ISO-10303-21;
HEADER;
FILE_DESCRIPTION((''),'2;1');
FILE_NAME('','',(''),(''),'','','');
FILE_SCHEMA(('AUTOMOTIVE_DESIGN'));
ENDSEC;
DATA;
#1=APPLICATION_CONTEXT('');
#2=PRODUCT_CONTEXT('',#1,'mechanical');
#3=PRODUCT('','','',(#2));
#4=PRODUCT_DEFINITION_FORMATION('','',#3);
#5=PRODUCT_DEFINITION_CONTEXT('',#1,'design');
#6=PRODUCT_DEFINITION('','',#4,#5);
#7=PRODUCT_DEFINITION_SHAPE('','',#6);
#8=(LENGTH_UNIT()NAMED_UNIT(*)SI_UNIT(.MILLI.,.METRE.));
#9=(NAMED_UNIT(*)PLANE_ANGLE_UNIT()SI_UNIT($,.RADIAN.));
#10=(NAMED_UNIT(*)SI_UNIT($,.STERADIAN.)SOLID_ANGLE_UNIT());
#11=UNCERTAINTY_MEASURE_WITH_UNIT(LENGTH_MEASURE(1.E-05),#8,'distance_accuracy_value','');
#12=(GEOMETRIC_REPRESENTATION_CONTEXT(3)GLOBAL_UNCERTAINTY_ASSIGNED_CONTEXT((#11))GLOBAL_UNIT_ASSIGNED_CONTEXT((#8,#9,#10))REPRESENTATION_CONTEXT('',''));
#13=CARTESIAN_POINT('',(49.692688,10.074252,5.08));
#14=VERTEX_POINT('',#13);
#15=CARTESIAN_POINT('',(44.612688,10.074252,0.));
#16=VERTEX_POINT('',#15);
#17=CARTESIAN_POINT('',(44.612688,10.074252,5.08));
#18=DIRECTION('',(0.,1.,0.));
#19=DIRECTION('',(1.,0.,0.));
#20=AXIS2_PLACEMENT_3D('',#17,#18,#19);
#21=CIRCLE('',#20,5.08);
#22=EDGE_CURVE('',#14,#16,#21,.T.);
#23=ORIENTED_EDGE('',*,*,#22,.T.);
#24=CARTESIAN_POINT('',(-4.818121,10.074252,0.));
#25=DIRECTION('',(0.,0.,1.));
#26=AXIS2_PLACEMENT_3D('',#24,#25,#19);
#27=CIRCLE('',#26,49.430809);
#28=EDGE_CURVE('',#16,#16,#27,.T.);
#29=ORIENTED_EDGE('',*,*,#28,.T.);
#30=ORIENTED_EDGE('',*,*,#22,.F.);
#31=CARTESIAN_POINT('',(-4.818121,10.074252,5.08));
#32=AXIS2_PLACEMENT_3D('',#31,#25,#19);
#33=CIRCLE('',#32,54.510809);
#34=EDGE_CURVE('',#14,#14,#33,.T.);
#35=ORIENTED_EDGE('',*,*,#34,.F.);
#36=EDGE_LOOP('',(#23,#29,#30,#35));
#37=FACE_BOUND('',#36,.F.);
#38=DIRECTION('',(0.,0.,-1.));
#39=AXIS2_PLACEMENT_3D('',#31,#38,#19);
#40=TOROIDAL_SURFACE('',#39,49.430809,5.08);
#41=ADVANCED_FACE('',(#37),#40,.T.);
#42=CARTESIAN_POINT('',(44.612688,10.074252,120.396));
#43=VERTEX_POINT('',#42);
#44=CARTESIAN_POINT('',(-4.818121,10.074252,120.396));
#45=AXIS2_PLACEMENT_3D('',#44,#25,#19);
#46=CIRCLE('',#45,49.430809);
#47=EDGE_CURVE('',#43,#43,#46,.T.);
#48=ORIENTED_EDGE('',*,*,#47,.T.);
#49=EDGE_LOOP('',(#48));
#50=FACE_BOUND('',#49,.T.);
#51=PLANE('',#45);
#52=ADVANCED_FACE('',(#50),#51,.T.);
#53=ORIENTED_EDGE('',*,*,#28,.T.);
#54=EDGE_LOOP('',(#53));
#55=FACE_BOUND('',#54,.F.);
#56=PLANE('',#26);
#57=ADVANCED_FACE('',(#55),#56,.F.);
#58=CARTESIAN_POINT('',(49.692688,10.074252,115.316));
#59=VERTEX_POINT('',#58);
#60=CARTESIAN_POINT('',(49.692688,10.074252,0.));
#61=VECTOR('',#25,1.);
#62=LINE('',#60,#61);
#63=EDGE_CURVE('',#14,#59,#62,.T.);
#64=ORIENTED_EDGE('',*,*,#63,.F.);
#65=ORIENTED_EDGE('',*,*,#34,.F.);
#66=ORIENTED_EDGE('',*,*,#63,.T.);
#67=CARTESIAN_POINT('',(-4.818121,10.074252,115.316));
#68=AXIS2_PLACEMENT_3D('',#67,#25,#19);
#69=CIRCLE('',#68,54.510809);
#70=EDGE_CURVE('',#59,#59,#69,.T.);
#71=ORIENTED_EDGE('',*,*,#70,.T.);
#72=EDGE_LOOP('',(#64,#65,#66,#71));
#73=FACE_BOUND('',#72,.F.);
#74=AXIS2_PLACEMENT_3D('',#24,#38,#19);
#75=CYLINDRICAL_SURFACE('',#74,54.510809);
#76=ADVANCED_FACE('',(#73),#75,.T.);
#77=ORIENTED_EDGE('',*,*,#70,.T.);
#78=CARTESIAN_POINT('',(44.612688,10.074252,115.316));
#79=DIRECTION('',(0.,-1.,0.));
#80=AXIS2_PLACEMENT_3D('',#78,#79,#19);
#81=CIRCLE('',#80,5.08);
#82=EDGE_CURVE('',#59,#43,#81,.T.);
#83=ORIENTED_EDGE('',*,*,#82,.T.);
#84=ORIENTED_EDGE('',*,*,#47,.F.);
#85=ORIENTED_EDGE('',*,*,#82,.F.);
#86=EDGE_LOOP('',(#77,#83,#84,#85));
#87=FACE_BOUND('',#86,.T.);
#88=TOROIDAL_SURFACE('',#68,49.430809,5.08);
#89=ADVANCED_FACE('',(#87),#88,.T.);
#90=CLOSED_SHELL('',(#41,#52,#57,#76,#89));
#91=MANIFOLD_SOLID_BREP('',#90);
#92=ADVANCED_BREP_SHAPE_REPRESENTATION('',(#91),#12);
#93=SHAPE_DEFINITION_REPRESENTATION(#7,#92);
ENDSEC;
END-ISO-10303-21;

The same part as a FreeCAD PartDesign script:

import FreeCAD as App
import Part
import Sketcher
Q = App.Units.Quantity


def edges_at(feature, points):
    """Names of the edges that pass closest to the given points."""
    edges = feature.Shape.Edges
    near = lambda p: min(range(len(edges)), key=lambda i: edges[i].distToShape(Part.Vertex(*p))[0])
    return sorted({f"Edge{near(p) + 1}" for p in points})

doc = App.newDocument("Part")
params = doc.addObject("Spreadsheet::Sheet", "Params")
for row, (alias, value) in enumerate([
    ("pad1_length", "4.74 in"),
    ("fillet_radius", "0.2 in"),
], start=1):
    params.set(f"A{row}", alias)
    params.set(f"B{row}", "=" + value)
    params.setAlias(f"B{row}", alias)

body = doc.addObject("PartDesign::Body", "Body")

sketch1 = doc.addObject("Sketcher::SketchObject", "Sketch")
body.addObject(sketch1)
sketch1.AttachmentSupport = (doc.XY_Plane, [""])
sketch1.MapMode = "FlatFace"
sketch1.addGeometry(Part.Circle(App.Vector(-5, 10, 0), App.Vector(0, 0, 1), 55), False)
sketch1.addConstraint([
    Sketcher.Constraint("Diameter", 0, Q("109.021618 mm")),
    Sketcher.Constraint("DistanceX", 0, 3, -1, 1, Q("4.818121 mm")),
    Sketcher.Constraint("DistanceY", -1, 1, 0, 3, Q("10.074252 mm")),
])
pad1 = doc.addObject("PartDesign::Pad", "Pad")
body.addObject(pad1)
pad1.Profile = sketch1
pad1.setExpression("Length", "Params.pad1_length")
doc.recompute()

fillet = doc.addObject("PartDesign::Fillet", "Fillet")
body.addObject(fillet)
fillet.Base = (pad1, edges_at(pad1, [(-59.329, 10.074, 120.396), (-59.329, 10.074, 0)]))
fillet.setExpression("Radius", "Params.fillet_radius")

doc.recompute()
